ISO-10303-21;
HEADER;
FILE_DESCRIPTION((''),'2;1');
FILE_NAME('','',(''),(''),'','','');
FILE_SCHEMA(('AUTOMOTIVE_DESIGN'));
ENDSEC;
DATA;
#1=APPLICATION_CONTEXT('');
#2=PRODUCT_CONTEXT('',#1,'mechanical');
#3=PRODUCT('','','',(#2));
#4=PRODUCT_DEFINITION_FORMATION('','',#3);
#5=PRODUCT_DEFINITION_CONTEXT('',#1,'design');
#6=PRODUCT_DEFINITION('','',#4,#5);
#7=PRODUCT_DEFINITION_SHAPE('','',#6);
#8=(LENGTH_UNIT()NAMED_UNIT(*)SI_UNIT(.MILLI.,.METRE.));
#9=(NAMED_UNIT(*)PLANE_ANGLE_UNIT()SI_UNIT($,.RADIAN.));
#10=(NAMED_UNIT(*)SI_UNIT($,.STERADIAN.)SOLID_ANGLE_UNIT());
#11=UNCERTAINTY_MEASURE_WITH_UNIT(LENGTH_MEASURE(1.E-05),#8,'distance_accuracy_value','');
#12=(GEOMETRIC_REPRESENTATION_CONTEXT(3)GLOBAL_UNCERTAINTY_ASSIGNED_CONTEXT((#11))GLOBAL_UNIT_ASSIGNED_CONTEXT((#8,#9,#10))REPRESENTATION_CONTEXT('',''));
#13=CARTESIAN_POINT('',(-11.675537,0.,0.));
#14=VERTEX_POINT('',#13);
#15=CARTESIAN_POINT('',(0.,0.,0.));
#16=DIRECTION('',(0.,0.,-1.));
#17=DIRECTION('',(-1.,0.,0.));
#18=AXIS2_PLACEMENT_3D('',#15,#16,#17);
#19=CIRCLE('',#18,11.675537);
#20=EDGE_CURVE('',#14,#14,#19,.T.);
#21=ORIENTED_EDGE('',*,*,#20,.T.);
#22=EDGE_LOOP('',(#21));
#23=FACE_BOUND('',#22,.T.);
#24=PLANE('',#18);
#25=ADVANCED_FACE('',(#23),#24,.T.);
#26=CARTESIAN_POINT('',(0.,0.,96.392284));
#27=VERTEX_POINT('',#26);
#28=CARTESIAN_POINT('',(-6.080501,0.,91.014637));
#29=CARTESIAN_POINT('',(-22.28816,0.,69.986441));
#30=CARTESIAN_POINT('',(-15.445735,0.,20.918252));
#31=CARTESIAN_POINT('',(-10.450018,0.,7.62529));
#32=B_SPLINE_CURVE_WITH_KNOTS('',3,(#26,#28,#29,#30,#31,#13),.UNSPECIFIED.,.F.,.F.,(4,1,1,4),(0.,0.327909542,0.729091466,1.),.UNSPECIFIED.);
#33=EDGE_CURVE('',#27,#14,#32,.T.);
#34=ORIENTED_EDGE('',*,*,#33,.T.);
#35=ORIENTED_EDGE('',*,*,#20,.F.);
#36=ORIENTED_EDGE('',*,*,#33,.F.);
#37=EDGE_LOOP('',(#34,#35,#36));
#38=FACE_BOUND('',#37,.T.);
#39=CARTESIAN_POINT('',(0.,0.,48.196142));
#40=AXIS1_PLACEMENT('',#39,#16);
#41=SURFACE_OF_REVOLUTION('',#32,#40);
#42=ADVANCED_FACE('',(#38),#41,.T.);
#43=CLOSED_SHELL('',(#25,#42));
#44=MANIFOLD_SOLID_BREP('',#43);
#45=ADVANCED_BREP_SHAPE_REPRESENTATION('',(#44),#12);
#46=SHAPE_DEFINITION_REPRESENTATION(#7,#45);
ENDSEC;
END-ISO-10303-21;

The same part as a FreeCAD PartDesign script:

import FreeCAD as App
import Part
import Sketcher

V = App.Vector

doc = App.newDocument("Part")
body = doc.addObject("PartDesign::Body", "Body")

sketch1 = body.newObject("Sketcher::SketchObject", "Sketch")
sketch1.AttachmentSupport = (doc.getObject("XZ_Plane"), [""])
sketch1.MapMode = "FlatFace"
sketch1.addGeometry([
    Part.LineSegment(V(0, 0, 0), V(0, 96.392284, 0)),
    Part.BSplineCurve([V(0, 96.392284, 0), V(-6.080501, 91.014637, 0), V(-22.28816, 69.986441, 0), V(-15.445735, 20.918252, 0), V(-10.450018, 7.62529, 0), V(-11.675537, 0, 0)], [4, 1, 1, 4], [0, 0.327909542, 0.729091466, 1], False, 3, [1, 1, 1, 1, 1, 1], False),
    Part.LineSegment(V(-11.675537, 0, 0), V(0, 0, 0)),
], False)
sketch1.addConstraint([
    Sketcher.Constraint("Block", 1),
    Sketcher.Constraint("Coincident", 0, 2, 1, 1),
    Sketcher.Constraint("Coincident", 1, 2, 2, 1),
    Sketcher.Constraint("Coincident", 2, 2, 0, 1),
    Sketcher.Constraint("Vertical", 0),
    Sketcher.Constraint("Horizontal", 2),
])
revolution = body.newObject("PartDesign::Revolution", "Revolution")
revolution.Profile = sketch1
revolution.ReferenceAxis = (sketch1, ["V_Axis"])
revolution.Angle = 360

doc.recompute()
